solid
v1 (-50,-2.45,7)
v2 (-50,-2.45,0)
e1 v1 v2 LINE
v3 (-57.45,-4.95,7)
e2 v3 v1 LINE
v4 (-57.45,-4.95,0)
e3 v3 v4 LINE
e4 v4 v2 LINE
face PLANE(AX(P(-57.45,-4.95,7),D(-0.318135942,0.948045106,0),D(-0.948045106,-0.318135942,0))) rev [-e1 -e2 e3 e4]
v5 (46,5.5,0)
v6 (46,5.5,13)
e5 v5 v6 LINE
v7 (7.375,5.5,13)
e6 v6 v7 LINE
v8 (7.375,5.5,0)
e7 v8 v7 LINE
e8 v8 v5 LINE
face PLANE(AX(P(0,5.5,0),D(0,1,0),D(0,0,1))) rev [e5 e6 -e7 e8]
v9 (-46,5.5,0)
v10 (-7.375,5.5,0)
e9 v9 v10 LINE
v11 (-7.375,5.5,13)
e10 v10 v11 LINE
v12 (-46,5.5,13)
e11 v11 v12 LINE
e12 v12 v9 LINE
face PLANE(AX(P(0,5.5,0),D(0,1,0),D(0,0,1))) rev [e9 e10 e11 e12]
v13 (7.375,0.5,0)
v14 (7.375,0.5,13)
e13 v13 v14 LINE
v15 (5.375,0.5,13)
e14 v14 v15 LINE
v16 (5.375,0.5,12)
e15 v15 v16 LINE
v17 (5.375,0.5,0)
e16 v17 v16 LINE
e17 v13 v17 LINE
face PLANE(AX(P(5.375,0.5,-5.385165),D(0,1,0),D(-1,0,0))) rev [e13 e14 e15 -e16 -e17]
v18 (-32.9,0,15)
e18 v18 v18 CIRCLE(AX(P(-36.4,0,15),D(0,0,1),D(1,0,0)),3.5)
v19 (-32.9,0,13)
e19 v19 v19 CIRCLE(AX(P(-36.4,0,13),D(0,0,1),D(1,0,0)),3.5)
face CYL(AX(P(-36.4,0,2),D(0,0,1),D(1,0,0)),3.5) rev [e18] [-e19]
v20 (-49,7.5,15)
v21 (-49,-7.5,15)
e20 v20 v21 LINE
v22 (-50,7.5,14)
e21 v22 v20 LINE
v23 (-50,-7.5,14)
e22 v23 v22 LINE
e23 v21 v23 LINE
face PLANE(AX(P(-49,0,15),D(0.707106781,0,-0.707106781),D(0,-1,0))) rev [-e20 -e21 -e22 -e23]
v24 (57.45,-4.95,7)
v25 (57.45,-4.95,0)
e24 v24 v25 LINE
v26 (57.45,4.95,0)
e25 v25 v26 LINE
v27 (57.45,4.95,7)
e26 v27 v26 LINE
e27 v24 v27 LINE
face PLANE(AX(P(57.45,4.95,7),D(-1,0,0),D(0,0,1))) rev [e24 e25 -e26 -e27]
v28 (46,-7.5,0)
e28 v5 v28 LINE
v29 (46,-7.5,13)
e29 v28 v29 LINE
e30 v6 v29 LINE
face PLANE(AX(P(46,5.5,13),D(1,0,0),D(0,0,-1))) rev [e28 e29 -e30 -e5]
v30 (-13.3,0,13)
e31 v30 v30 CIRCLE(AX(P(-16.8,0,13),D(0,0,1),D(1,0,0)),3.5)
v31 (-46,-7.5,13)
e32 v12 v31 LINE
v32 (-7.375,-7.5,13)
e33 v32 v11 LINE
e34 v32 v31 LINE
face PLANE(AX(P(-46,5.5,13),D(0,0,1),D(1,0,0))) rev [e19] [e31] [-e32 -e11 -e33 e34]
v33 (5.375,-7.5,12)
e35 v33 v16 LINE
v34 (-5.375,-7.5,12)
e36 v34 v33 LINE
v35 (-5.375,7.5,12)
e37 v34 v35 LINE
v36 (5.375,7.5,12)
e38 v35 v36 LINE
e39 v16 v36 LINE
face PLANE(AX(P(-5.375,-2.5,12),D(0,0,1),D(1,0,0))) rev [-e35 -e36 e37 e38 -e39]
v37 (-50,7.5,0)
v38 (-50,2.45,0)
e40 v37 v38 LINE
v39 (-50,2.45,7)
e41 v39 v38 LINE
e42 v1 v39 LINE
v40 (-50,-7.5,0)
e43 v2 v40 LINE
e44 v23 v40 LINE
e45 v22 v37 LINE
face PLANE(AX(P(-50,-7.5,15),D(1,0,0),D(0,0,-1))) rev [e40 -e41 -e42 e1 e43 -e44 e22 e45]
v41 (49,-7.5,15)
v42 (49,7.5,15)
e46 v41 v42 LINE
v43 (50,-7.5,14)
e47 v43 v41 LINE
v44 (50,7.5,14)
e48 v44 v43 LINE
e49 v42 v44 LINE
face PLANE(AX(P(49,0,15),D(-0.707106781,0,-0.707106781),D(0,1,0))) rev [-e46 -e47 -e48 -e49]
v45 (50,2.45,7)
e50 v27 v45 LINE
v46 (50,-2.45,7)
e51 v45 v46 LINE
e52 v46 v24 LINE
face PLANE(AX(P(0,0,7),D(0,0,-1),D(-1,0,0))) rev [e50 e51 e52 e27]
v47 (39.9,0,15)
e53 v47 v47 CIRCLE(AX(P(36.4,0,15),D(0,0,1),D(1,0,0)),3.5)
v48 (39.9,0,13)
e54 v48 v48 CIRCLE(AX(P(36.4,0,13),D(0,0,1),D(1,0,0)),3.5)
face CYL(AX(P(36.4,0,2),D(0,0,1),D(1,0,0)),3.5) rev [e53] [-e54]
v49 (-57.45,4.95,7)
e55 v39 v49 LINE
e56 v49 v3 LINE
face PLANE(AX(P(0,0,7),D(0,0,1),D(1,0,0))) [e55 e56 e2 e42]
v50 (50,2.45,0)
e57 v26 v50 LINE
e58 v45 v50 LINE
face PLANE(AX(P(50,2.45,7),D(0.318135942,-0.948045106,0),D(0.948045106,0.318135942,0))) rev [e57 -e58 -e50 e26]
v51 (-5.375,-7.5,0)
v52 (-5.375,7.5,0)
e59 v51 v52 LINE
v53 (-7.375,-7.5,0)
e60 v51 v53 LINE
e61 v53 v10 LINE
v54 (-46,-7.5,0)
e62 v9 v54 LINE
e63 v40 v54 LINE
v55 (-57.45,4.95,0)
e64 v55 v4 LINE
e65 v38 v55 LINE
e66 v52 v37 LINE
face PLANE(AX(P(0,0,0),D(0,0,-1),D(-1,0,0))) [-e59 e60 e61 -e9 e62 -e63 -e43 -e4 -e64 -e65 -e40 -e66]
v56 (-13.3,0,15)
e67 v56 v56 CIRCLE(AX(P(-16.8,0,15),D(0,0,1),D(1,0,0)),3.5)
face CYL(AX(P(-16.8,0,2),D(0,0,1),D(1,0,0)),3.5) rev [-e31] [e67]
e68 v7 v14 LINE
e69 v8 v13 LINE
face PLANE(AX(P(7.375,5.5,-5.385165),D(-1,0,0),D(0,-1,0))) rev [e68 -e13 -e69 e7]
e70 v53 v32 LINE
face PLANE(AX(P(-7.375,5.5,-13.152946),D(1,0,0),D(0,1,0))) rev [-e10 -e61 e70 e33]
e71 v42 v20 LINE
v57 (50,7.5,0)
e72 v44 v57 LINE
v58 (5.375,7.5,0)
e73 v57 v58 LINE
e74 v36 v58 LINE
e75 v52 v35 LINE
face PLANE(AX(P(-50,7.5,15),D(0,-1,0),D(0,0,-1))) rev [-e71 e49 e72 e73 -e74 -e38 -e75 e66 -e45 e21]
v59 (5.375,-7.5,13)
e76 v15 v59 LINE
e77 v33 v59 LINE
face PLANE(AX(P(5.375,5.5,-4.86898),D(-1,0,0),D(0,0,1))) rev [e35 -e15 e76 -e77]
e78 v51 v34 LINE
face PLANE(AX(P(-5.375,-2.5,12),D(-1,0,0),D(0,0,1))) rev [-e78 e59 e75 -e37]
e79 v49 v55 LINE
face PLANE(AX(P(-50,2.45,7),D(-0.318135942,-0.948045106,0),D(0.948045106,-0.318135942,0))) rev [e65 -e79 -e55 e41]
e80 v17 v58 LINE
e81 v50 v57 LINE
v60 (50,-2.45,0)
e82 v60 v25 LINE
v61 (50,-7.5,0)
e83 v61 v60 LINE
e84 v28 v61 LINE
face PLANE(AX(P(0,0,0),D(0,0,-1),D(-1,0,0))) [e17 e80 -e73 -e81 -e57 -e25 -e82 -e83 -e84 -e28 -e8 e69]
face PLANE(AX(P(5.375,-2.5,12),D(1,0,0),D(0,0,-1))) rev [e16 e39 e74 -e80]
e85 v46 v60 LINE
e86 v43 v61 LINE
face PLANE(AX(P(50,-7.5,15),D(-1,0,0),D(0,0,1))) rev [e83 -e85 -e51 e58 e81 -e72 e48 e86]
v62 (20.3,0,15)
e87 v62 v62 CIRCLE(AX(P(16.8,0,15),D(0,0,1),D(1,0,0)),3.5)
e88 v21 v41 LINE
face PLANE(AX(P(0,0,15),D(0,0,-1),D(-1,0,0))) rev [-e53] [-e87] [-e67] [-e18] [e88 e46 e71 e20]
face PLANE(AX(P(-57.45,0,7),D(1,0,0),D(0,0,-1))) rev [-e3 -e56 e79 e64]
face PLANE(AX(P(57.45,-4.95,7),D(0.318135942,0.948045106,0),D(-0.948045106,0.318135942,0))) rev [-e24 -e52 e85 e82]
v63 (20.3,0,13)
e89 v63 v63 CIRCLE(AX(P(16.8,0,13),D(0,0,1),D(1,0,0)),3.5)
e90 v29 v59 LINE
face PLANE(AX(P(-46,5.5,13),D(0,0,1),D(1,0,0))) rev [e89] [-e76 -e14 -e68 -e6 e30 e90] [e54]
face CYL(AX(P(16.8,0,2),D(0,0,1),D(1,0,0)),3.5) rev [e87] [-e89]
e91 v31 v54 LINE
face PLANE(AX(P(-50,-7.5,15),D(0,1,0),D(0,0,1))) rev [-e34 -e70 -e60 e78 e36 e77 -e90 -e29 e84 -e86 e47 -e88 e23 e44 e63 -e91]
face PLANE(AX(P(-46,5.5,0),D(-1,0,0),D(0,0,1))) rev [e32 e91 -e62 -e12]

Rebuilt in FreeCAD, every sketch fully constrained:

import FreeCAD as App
import Part
import Sketcher
from FreeCAD import Vector


def edges_at(feature, points):
    """Names of the edges that pass closest to the given points."""
    edges = feature.Shape.Edges
    near = lambda p: min(range(len(edges)), key=lambda i: edges[i].distToShape(Part.Vertex(*p))[0])
    return sorted({f"Edge{near(p) + 1}" for p in points})

doc = App.newDocument("Part")
params = doc.addObject("Spreadsheet::Sheet", "Params")
for row, (alias, value) in enumerate([
    ("sketch1_width", "100 mm"),
    ("sketch1_height", "15 mm"),
    ("pad1_length", "15 mm"),
    ("sketch2_height", "9.9 mm"),
    ("sketch2_height2", "4.9 mm"),
    ("pad2_length", "7 mm"),
    ("chamfer_size", "1 mm"),
    ("sketch3_width", "92 mm"),
    ("sketch3_height", "13 mm"),
    ("pocket1_length", "13 mm"),
    ("sketch4_diameter", "7 mm"),
    ("pocket2_length", "13 mm"),
    ("sketch5_height", "12 mm"),
    ("sketch5_width", "10.75 mm"),
    ("pocket3_length", "10 mm"),
    ("sketch6_height", "13 mm"),
    ("sketch6_width", "10.75 mm"),
    ("pad3_length", "1 mm"),
    ("sketch7_width", "2 mm"),
    ("sketch7_height", "13 mm"),
    ("pad4_length", "13 mm"),
    ("sketch8_width", "2 mm"),
    ("sketch8_height", "5 mm"),
    ("pad5_length", "13 mm"),
], start=1):
    params.set(f"A{row}", alias)
    params.set(f"B{row}", "=" + value)
    params.setAlias(f"B{row}", alias)

body = doc.addObject("PartDesign::Body", "Body")

sketch1 = body.newObject("Sketcher::SketchObject", "Sketch")
sketch1.AttachmentSupport = (doc.getObject("XY_Plane"), [""])
sketch1.MapMode = "FlatFace"
sketch1.addGeometry([
    Part.LineSegment(Vector(-50, 7.5, 0), Vector(-50, -7.5, 0)),
    Part.LineSegment(Vector(-50, -7.5, 0), Vector(50, -7.5, 0)),
    Part.LineSegment(Vector(50, -7.5, 0), Vector(50, 7.5, 0)),
    Part.LineSegment(Vector(50, 7.5, 0), Vector(-50, 7.5, 0)),
], False)
sketch1.addConstraint([
    Sketcher.Constraint("Coincident", 0, 2, 1, 1),
    Sketcher.Constraint("Coincident", 1, 2, 2, 1),
    Sketcher.Constraint("Coincident", 2, 2, 3, 1),
    Sketcher.Constraint("Coincident", 3, 2, 0, 1),
    Sketcher.Constraint("Vertical", 0),
    Sketcher.Constraint("Horizontal", 1),
    Sketcher.Constraint("Vertical", 2),
    Sketcher.Constraint("Horizontal", 3),
    Sketcher.Constraint("Symmetric", 0, 2, 2, 2, -1, 1),
    Sketcher.Constraint("DistanceX", 1, 1, 1, 2, 100.0),
    Sketcher.Constraint("DistanceY", 0, 2, 0, 1, 15.0),
])
sketch1.setExpression("Constraints[9]", "Params.sketch1_width")
sketch1.setExpression("Constraints[10]", "Params.sketch1_height")
pad1 = body.newObject("PartDesign::Pad", "Pad")
pad1.Profile = sketch1
pad1.setExpression("Length", "Params.pad1_length")

sketch2 = body.newObject("Sketcher::SketchObject", "Sketch001")
sketch2.AttachmentSupport = (doc.getObject("XY_Plane"), [""])
sketch2.MapMode = "FlatFace"
sketch2.addGeometry([
    Part.LineSegment(Vector(-50, 2.45, 0), Vector(-57.45, 4.95, 0)),
    Part.LineSegment(Vector(-57.45, 4.95, 0), Vector(-57.45, -4.95, 0)),
    Part.LineSegment(Vector(-57.45, -4.95, 0), Vector(-50, -2.45, 0)),
    Part.LineSegment(Vector(-50, -2.45, 0), Vector(-50, 2.45, 0)),
    Part.LineSegment(Vector(57.45, -4.95, 0), Vector(57.45, 4.95, 0)),
    Part.LineSegment(Vector(57.45, 4.95, 0), Vector(50, 2.45, 0)),
    Part.LineSegment(Vector(50, 2.45, 0), Vector(50, -2.45, 0)),
    Part.LineSegment(Vector(50, -2.45, 0), Vector(57.45, -4.95, 0)),
], False)
sketch2.addConstraint([
    Sketcher.Constraint("Coincident", 0, 2, 1, 1),
    Sketcher.Constraint("Coincident", 1, 2, 2, 1),
    Sketcher.Constraint("Coincident", 2, 2, 3, 1),
    Sketcher.Constraint("Coincident", 3, 2, 0, 1),
    Sketcher.Constraint("Coincident", 4, 2, 5, 1),
    Sketcher.Constraint("Coincident", 5, 2, 6, 1),
    Sketcher.Constraint("Coincident", 6, 2, 7, 1),
    Sketcher.Constraint("Coincident", 7, 2, 4, 1),
    Sketcher.Constraint("Vertical", 1),
    Sketcher.Constraint("Vertical", 3),
    Sketcher.Constraint("Vertical", 4),
    Sketcher.Constraint("Vertical", 6),
    Sketcher.Constraint("Symmetric", 1, 2, 4, 2, -1, 1),
    Sketcher.Constraint("Symmetric", 2, 2, 5, 2, -1, 1),
    Sketcher.Constraint("Parallel", 0, 7),
    Sketcher.Constraint("Horizontal", 0, 2, 4, 2),
    Sketcher.Constraint("Horizontal", 3, 2, 5, 2),
    Sketcher.Constraint("Horizontal", 2, 2, 6, 2),
    Sketcher.Constraint("DistanceY", 1, 2, 1, 1, 9.9),
    Sketcher.Constraint("DistanceY", 3, 1, 3, 2, 4.9),
    Sketcher.Constraint("DistanceX", 2, 2, -1, 1, 50.0),
    Sketcher.Constraint("DistanceX", 0, 2, 4, 2, 114.9),
])
sketch2.setExpression("Constraints[18]", "Params.sketch2_height")
sketch2.setExpression("Constraints[19]", "Params.sketch2_height2")
pad2 = body.newObject("PartDesign::Pad", "Pad001")
pad2.Profile = sketch2
pad2.setExpression("Length", "Params.pad2_length")
doc.recompute()

chamfer = body.newObject("PartDesign::Chamfer", "Chamfer")
chamfer.Base = (pad2, edges_at(pad2, [(-50, 0, 15), (50, 0, 15)]))
chamfer.setExpression("Size", "Params.chamfer_size")

sketch3 = body.newObject("Sketcher::SketchObject", "Sketch002")
sketch3.AttachmentSupport = (doc.getObject("XZ_Plane"), [""])
sketch3.MapMode = "FlatFace"
sketch3.AttachmentOffset = App.Placement(Vector(0, 0, 7.5), App.Rotation())
sketch3.addGeometry([
    Part.LineSegment(Vector(-46, 13, 0), Vector(-46, 0, 0)),
    Part.LineSegment(Vector(-46, 0, 0), Vector(46, 0, 0)),
    Part.LineSegment(Vector(46, 0, 0), Vector(46, 13, 0)),
    Part.LineSegment(Vector(46, 13, 0), Vector(-46, 13, 0)),
], False)
sketch3.addConstraint([
    Sketcher.Constraint("Coincident", 0, 2, 1, 1),
    Sketcher.Constraint("Coincident", 1, 2, 2, 1),
    Sketcher.Constraint("Coincident", 2, 2, 3, 1),
    Sketcher.Constraint("Coincident", 3, 2, 0, 1),
    Sketcher.Constraint("Vertical", 0),
    Sketcher.Constraint("Horizontal", 1),
    Sketcher.Constraint("Vertical", 2),
    Sketcher.Constraint("Horizontal", 3),
    Sketcher.Constraint("Symmetric", 0, 2, 1, 2, -1, 1),
    Sketcher.Constraint("DistanceX", 1, 1, 1, 2, 92.0),
    Sketcher.Constraint("DistanceY", 0, 2, 0, 1, 13.0),
])
sketch3.setExpression("Constraints[9]", "Params.sketch3_width")
sketch3.setExpression("Constraints[10]", "Params.sketch3_height")
pocket1 = body.newObject("PartDesign::Pocket", "Pocket")
pocket1.Profile = sketch3
pocket1.setExpression("Length", "Params.pocket1_length")

sketch4 = body.newObject("Sketcher::SketchObject", "Sketch003")
sketch4.AttachmentSupport = (doc.getObject("XY_Plane"), [""])
sketch4.MapMode = "FlatFace"
sketch4.AttachmentOffset = App.Placement(Vector(0, 0, 15), App.Rotation())
sketch4.addGeometry([
    Part.Circle(Vector(-16.8, 0, 0), Vector(0, 0, 1), 3.5),
    Part.Circle(Vector(-36.4, 0, 0), Vector(0, 0, 1), 3.5),
    Part.Circle(Vector(16.8, 0, 0), Vector(0, 0, 1), 3.5),
    Part.Circle(Vector(36.4, 0, 0), Vector(0, 0, 1), 3.5),
], False)
sketch4.addConstraint([
    Sketcher.Constraint("Equal", 0, 1),
    Sketcher.Constraint("Equal", 1, 2),
    Sketcher.Constraint("Equal", 2, 3),
    Sketcher.Constraint("Symmetric", 0, 3, 2, 3, -1, 1),
    Sketcher.Constraint("Symmetric", 1, 3, 3, 3, -1, 1),
    Sketcher.Constraint("PointOnObject", 0, 3, -1),
    Sketcher.Constraint("PointOnObject", 1, 3, -1),
    Sketcher.Constraint("Diameter", 0, 7.0),
    Sketcher.Constraint("DistanceX", 0, 3, -1, 1, 16.8),
    Sketcher.Constraint("DistanceX", 1, 3, -1, 1, 36.4),
])
sketch4.setExpression("Constraints[7]", "Params.sketch4_diameter")
pocket2 = body.newObject("PartDesign::Pocket", "Pocket001")
pocket2.Profile = sketch4
pocket2.setExpression("Length", "Params.pocket2_length")

sketch5 = body.newObject("Sketcher::SketchObject", "Sketch004")
sketch5.AttachmentSupport = (doc.getObject("XZ_Plane"), [""])
sketch5.MapMode = "FlatFace"
sketch5.AttachmentOffset = App.Placement(Vector(0, 0, -7.5), App.Rotation())
sketch5.addGeometry([
    Part.LineSegment(Vector(-5.375, 0, 0), Vector(-5.375, 12, 0)),
    Part.LineSegment(Vector(-5.375, 12, 0), Vector(5.375, 12, 0)),
    Part.LineSegment(Vector(5.375, 12, 0), Vector(5.375, 0, 0)),
    Part.LineSegment(Vector(5.375, 0, 0), Vector(-5.375, 0, 0)),
], False)
sketch5.addConstraint([
    Sketcher.Constraint("Coincident", 0, 2, 1, 1),
    Sketcher.Constraint("Coincident", 1, 2, 2, 1),
    Sketcher.Constraint("Coincident", 2, 2, 3, 1),
    Sketcher.Constraint("Coincident", 3, 2, 0, 1),
    Sketcher.Constraint("Vertical", 0),
    Sketcher.Constraint("Horizontal", 1),
    Sketcher.Constraint("Vertical", 2),
    Sketcher.Constraint("Horizontal", 3),
    Sketcher.Constraint("Symmetric", 2, 2, 3, 2, -1, 1),
    Sketcher.Constraint("DistanceY", 0, 1, 0, 2, 12.0),
    Sketcher.Constraint("DistanceX", 1, 1, 1, 2, 10.75),
])
sketch5.setExpression("Constraints[9]", "Params.sketch5_height")
sketch5.setExpression("Constraints[10]", "Params.sketch5_width")
pocket3 = body.newObject("PartDesign::Pocket", "Pocket002")
pocket3.Profile = sketch5
pocket3.setExpression("Length", "Params.pocket3_length")
pocket3.Reversed = True

sketch6 = body.newObject("Sketcher::SketchObject", "Sketch005")
sketch6.AttachmentSupport = (doc.getObject("XY_Plane"), [""])
sketch6.MapMode = "FlatFace"
sketch6.AttachmentOffset = App.Placement(Vector(0, 0, 13), App.Rotation())
sketch6.addGeometry([
    Part.LineSegment(Vector(5.375, 5.5, 0), Vector(5.375, -7.5, 0)),
    Part.LineSegment(Vector(5.375, -7.5, 0), Vector(-5.375, -7.5, 0)),
    Part.LineSegment(Vector(-5.375, -7.5, 0), Vector(-5.375, 5.5, 0)),
    Part.LineSegment(Vector(-5.375, 5.5, 0), Vector(5.375, 5.5, 0)),
], False)
sketch6.addConstraint([
    Sketcher.Constraint("Coincident", 0, 2, 1, 1),
    Sketcher.Constraint("Coincident", 1, 2, 2, 1),
    Sketcher.Constraint("Coincident", 2, 2, 3, 1),
    Sketcher.Constraint("Coincident", 3, 2, 0, 1),
    Sketcher.Constraint("Vertical", 0),
    Sketcher.Constraint("Horizontal", 1),
    Sketcher.Constraint("Vertical", 2),
    Sketcher.Constraint("Horizontal", 3),
    Sketcher.Constraint("DistanceY", 0, 2, 0, 1, 13.0),
    Sketcher.Constraint("DistanceX", 1, 2, 1, 1, 10.75),
    Sketcher.Constraint("DistanceY", 0, 2, -1, 1, 7.5),
    Sketcher.Constraint("DistanceX", -1, 1, 0, 2, 5.375),
])
sketch6.setExpression("Constraints[8]", "Params.sketch6_height")
sketch6.setExpression("Constraints[9]", "Params.sketch6_width")
pad3 = body.newObject("PartDesign::Pad", "Pad002")
pad3.Profile = sketch6
pad3.setExpression("Length", "Params.pad3_length")
pad3.Reversed = True

sketch7 = body.newObject("Sketcher::SketchObject", "Sketch006")
sketch7.AttachmentSupport = (doc.getObject("XY_Plane"), [""])
sketch7.MapMode = "FlatFace"
sketch7.AttachmentOffset = App.Placement(Vector(0, 0, 13), App.Rotation())
sketch7.addGeometry([
    Part.LineSegment(Vector(-5.375, 5.5, 0), Vector(-5.375, -7.5, 0)),
    Part.LineSegment(Vector(-5.375, -7.5, 0), Vector(-7.375, -7.5, 0)),
    Part.LineSegment(Vector(-7.375, -7.5, 0), Vector(-7.375, 5.5, 0)),
    Part.LineSegment(Vector(-7.375, 5.5, 0), Vector(-5.375, 5.5, 0)),
], False)
sketch7.addConstraint([
    Sketcher.Constraint("Coincident", 0, 2, 1, 1),
    Sketcher.Constraint("Coincident", 1, 2, 2, 1),
    Sketcher.Constraint("Coincident", 2, 2, 3, 1),
    Sketcher.Constraint("Coincident", 3, 2, 0, 1),
    Sketcher.Constraint("Vertical", 0),
    Sketcher.Constraint("Horizontal", 1),
    Sketcher.Constraint("Vertical", 2),
    Sketcher.Constraint("Horizontal", 3),
    Sketcher.Constraint("DistanceX", 1, 2, 1, 1, 2.0),
    Sketcher.Constraint("DistanceY", 0, 2, 0, 1, 13.0),
    Sketcher.Constraint("DistanceY", 0, 2, -1, 1, 7.5),
    Sketcher.Constraint("DistanceX", 0, 2, -1, 1, 5.375),
])
sketch7.setExpression("Constraints[8]", "Params.sketch7_width")
sketch7.setExpression("Constraints[9]", "Params.sketch7_height")
pad4 = body.newObject("PartDesign::Pad", "Pad003")
pad4.Profile = sketch7
pad4.setExpression("Length", "Params.pad4_length")
pad4.Reversed = True

sketch8 = body.newObject("Sketcher::SketchObject", "Sketch007")
sketch8.AttachmentSupport = (doc.getObject("XY_Plane"), [""])
sketch8.MapMode = "FlatFace"
sketch8.AttachmentOffset = App.Placement(Vector(0, 0, 13), App.Rotation())
sketch8.addGeometry([
    Part.LineSegment(Vector(7.375, 5.5, 0), Vector(7.375, 0.5, 0)),
    Part.LineSegment(Vector(7.375, 0.5, 0), Vector(5.375, 0.5, 0)),
    Part.LineSegment(Vector(5.375, 0.5, 0), Vector(5.375, 5.5, 0)),
    Part.LineSegment(Vector(5.375, 5.5, 0), Vector(7.375, 5.5, 0)),
], False)
sketch8.addConstraint([
    Sketcher.Constraint("Coincident", 0, 2, 1, 1),
    Sketcher.Constraint("Coincident", 1, 2, 2, 1),
    Sketcher.Constraint("Coincident", 2, 2, 3, 1),
    Sketcher.Constraint("Coincident", 3, 2, 0, 1),
    Sketcher.Constraint("Vertical", 0),
    Sketcher.Constraint("Horizontal", 1),
    Sketcher.Constraint("Vertical", 2),
    Sketcher.Constraint("Horizontal", 3),
    Sketcher.Constraint("DistanceX", 1, 2, 1, 1, 2.0),
    Sketcher.Constraint("DistanceY", 0, 2, 0, 1, 5.0),
    Sketcher.Constraint("DistanceY", -1, 1, 0, 2, 0.5),
    Sketcher.Constraint("DistanceX", -1, 1, 0, 2, 7.375),
])
sketch8.setExpression("Constraints[8]", "Params.sketch8_width")
sketch8.setExpression("Constraints[9]", "Params.sketch8_height")
pad5 = body.newObject("PartDesign::Pad", "Pad004")
pad5.Profile = sketch8
pad5.setExpression("Length", "Params.pad5_length")
pad5.Reversed = True

doc.recompute()
